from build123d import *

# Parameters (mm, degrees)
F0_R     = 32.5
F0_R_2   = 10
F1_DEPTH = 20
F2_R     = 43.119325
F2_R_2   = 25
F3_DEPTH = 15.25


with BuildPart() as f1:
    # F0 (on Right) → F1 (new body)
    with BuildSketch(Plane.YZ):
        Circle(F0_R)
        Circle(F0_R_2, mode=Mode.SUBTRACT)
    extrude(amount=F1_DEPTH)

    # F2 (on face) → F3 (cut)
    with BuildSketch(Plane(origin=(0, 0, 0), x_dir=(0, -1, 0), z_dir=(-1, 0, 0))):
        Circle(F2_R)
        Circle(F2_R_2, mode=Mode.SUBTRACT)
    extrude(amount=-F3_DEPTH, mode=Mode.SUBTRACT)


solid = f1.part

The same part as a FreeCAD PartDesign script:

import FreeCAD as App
import Part
import Sketcher

doc = App.newDocument("Part")
params = doc.addObject("Spreadsheet::Sheet", "Params")
for row, (alias, value) in enumerate([
    ("sketch1_diameter", "65 mm"),
    ("sketch1_diameter2", "20 mm"),
    ("pad1_length", "20 mm"),
    ("sketch2_diameter", "50 mm"),
    ("pocket1_length", "15.25 mm"),
], start=1):
    params.set(f"A{row}", alias)
    params.set(f"B{row}", "=" + value)
    params.setAlias(f"B{row}", alias)

body = doc.addObject("PartDesign::Body", "Body")

sketch1 = body.newObject("Sketcher::SketchObject", "Sketch")
sketch1.AttachmentSupport = (doc.getObject("YZ_Plane"), [""])
sketch1.MapMode = "FlatFace"
sketch1.addGeometry([
    Part.Circle(App.Vector(0, 0, 0), App.Vector(0, 0, 1), 32),
    Part.Circle(App.Vector(0, 0, 0), App.Vector(0, 0, 1), 10),
], False)
sketch1.addConstraint([
    Sketcher.Constraint("Coincident", 0, 3, -1, 1),
    Sketcher.Constraint("Coincident", 1, 3, -1, 1),
    Sketcher.Constraint("Diameter", 0, 65.0),
    Sketcher.Constraint("Diameter", 1, 20.0),
])
sketch1.setExpression("Constraints[2]", "Params.sketch1_diameter")
sketch1.setExpression("Constraints[3]", "Params.sketch1_diameter2")
pad1 = body.newObject("PartDesign::Pad", "Pad")
pad1.Profile = sketch1
pad1.setExpression("Length", "Params.pad1_length")

sketch2 = body.newObject("Sketcher::SketchObject", "Sketch001")
sketch2.AttachmentSupport = (doc.getObject("YZ_Plane"), [""])
sketch2.MapMode = "FlatFace"
sketch2.addGeometry([
    Part.Circle(App.Vector(0, 0, 0), App.Vector(0, 0, 1), 43),
    Part.Circle(App.Vector(0, 0, 0), App.Vector(0, 0, 1), 25),
], False)
sketch2.addConstraint([
    Sketcher.Constraint("Coincident", 0, 3, -1, 1),
    Sketcher.Constraint("Coincident", 1, 3, -1, 1),
    Sketcher.Constraint("Diameter", 1, 50.0),
    Sketcher.Constraint("Diameter", 0, 86.23865),
])
sketch2.setExpression("Constraints[2]", "Params.sketch2_diameter")
pocket1 = body.newObject("PartDesign::Pocket", "Pocket")
pocket1.Profile = sketch2
pocket1.setExpression("Length", "Params.pocket1_length")
pocket1.Reversed = True

doc.recompute()
